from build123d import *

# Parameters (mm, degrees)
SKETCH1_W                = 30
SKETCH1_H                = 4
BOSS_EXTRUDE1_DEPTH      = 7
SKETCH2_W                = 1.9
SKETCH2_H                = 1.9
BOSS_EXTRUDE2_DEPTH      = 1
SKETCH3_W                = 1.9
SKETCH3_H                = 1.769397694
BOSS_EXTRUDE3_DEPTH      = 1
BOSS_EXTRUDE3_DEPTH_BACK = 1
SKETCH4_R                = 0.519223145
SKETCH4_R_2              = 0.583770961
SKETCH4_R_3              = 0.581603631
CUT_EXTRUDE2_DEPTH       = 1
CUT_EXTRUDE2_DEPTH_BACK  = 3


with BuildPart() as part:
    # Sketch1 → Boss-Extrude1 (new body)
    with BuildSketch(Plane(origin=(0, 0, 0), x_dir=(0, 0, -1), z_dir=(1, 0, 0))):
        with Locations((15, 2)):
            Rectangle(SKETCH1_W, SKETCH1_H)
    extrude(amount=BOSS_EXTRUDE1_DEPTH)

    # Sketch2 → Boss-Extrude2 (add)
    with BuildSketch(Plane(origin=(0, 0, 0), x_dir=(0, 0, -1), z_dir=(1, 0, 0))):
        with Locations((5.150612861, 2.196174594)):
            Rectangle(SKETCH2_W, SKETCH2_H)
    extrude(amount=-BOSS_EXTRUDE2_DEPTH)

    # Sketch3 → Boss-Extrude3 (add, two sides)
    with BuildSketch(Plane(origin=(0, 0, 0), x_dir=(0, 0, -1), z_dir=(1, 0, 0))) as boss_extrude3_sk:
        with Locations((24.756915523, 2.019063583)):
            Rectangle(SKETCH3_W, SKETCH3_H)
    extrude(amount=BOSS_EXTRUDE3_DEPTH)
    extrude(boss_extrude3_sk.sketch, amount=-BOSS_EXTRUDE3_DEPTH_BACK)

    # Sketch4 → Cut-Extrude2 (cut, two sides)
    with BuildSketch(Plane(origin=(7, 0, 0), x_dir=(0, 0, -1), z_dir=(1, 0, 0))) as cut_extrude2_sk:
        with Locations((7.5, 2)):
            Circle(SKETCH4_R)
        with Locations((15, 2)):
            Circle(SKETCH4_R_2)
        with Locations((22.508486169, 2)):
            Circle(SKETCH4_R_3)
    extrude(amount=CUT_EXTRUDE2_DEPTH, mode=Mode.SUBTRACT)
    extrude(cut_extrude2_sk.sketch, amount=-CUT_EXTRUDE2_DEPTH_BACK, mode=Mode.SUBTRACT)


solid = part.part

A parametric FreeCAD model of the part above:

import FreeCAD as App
import Part
import Sketcher
Q = App.Units.Quantity


def add_polygon(sketch, points):
    """Adds a closed chain of lines whose ends are joined by coincident constraints."""
    first, n = sketch.GeometryCount, len(points)
    for a, b in zip(points, points[1:] + points[:1]):
        sketch.addGeometry(Part.LineSegment(App.Vector(*a, 0), App.Vector(*b, 0)), False)
    for i in range(n):
        sketch.addConstraint(Sketcher.Constraint("Coincident", first + i, 2, first + (i + 1) % n, 1))

doc = App.newDocument("Part")
body = doc.addObject("PartDesign::Body", "Body")

# Sketch on YZ plane
sketch1 = doc.addObject("Sketcher::SketchObject", "Sketch")
body.addObject(sketch1)
sketch1.AttachmentSupport = (doc.YZ_Plane, [""])
sketch1.MapMode = "FlatFace"
add_polygon(sketch1, [(4, 0), (0, 0), (0, -30), (4, -30)])  # lines 0-3
sketch1.addConstraint([
    Sketcher.Constraint("Horizontal", 0),
    Sketcher.Constraint("Vertical", 1),
    Sketcher.Constraint("Horizontal", 2),
    Sketcher.Constraint("Vertical", 3),
    Sketcher.Constraint("Coincident", 0, 2, -1, 1),
    Sketcher.Constraint("DistanceX", 0, 2, 0, 1, Q("4 mm")),
    Sketcher.Constraint("DistanceY", 1, 2, 1, 1, Q("30 mm")),
])
pad1 = doc.addObject("PartDesign::Pad", "Pad")
body.addObject(pad1)
pad1.Profile = sketch1
pad1.Length = 7

# Sketch on YZ plane
sketch2 = doc.addObject("Sketcher::SketchObject", "Sketch001")
body.addObject(sketch2)
sketch2.AttachmentSupport = (doc.YZ_Plane, [""])
sketch2.MapMode = "FlatFace"
add_polygon(sketch2, [(3.1, -4.2), (1.2, -4.2), (1.2, -6.1), (3.1, -6.1)])  # lines 0-3
sketch2.addConstraint([
    Sketcher.Constraint("Horizontal", 0),
    Sketcher.Constraint("Vertical", 1),
    Sketcher.Constraint("Horizontal", 2),
    Sketcher.Constraint("Vertical", 3),
    Sketcher.Constraint("Equal", 2, 1),
    Sketcher.Constraint("DistanceX", 0, 2, 0, 1, Q("1.9 mm")),
    Sketcher.Constraint("DistanceX", -1, 1, 0, 2, Q("1.246175 mm")),
    Sketcher.Constraint("DistanceY", 0, 2, -1, 1, Q("4.200613 mm")),
])
pad2 = doc.addObject("PartDesign::Pad", "Pad001")
body.addObject(pad2)
pad2.Profile = sketch2
pad2.Length = 1
pad2.Reversed = True

# Sketch on YZ plane
sketch3 = doc.addObject("Sketcher::SketchObject", "Sketch002")
body.addObject(sketch3)
sketch3.AttachmentSupport = (doc.YZ_Plane, [""])
sketch3.MapMode = "FlatFace"
add_polygon(sketch3, [(2.9, -23.8), (1.1, -23.8), (1.1, -25.7), (2.9, -25.7)])  # lines 0-3
sketch3.addConstraint([
    Sketcher.Constraint("Horizontal", 0),
    Sketcher.Constraint("Vertical", 1),
    Sketcher.Constraint("Horizontal", 2),
    Sketcher.Constraint("Vertical", 3),
    Sketcher.Constraint("DistanceY", 1, 2, 1, 1, Q("1.9 mm")),
    Sketcher.Constraint("DistanceX", 0, 2, 0, 1, Q("1.769398 mm")),
    Sketcher.Constraint("DistanceX", -1, 1, 0, 2, Q("1.134365 mm")),
    Sketcher.Constraint("DistanceY", 0, 2, -1, 1, Q("23.806916 mm")),
])
pad3 = doc.addObject("PartDesign::Pad", "Pad002")
body.addObject(pad3)
pad3.Profile = sketch3
pad3.Type = "TwoLengths"
pad3.Length = 1
pad3.Length2 = 1

# Sketch on YZ plane
sketch4 = doc.addObject("Sketcher::SketchObject", "Sketch003")
body.addObject(sketch4)
sketch4.AttachmentSupport = (doc.YZ_Plane, [""])
sketch4.MapMode = "FlatFace"
sketch4.AttachmentOffset = App.Placement(App.Vector(0, 0, 7), App.Rotation())
sketch4.addGeometry([
    Part.Circle(App.Vector(2, -7.5, 0), App.Vector(0, 0, 1), 0.5),
    Part.Circle(App.Vector(2, -15, 0), App.Vector(0, 0, 1), 0.6),
    Part.Circle(App.Vector(2, -22.5, 0), App.Vector(0, 0, 1), 0.6),
], False)
sketch4.addConstraint([
    Sketcher.Constraint("Vertical", 0, 3, 1, 3),
    Sketcher.Constraint("Vertical", 1, 3, 2, 3),
    Sketcher.Constraint("DistanceX", -1, 1, 0, 3, Q("2 mm")),
    Sketcher.Constraint("DistanceY", 1, 3, -1, 1, Q("15 mm")),
    Sketcher.Constraint("DistanceY", 0, 3, -1, 1, Q("7.5 mm")),
    Sketcher.Constraint("Diameter", 1, Q("1.167542 mm")),
    Sketcher.Constraint("Diameter", 0, Q("1.038446 mm")),
    Sketcher.Constraint("Diameter", 2, Q("1.163207 mm")),
    Sketcher.Constraint("DistanceY", 2, 3, -1, 1, Q("22.508486 mm")),
])
pocket1 = doc.addObject("PartDesign::Pocket", "Pocket")
body.addObject(pocket1)
pocket1.Profile = sketch4
pocket1.Type = "TwoLengths"
pocket1.Length = 1
pocket1.Length2 = 3
pocket1.Reversed = True

doc.recompute()
